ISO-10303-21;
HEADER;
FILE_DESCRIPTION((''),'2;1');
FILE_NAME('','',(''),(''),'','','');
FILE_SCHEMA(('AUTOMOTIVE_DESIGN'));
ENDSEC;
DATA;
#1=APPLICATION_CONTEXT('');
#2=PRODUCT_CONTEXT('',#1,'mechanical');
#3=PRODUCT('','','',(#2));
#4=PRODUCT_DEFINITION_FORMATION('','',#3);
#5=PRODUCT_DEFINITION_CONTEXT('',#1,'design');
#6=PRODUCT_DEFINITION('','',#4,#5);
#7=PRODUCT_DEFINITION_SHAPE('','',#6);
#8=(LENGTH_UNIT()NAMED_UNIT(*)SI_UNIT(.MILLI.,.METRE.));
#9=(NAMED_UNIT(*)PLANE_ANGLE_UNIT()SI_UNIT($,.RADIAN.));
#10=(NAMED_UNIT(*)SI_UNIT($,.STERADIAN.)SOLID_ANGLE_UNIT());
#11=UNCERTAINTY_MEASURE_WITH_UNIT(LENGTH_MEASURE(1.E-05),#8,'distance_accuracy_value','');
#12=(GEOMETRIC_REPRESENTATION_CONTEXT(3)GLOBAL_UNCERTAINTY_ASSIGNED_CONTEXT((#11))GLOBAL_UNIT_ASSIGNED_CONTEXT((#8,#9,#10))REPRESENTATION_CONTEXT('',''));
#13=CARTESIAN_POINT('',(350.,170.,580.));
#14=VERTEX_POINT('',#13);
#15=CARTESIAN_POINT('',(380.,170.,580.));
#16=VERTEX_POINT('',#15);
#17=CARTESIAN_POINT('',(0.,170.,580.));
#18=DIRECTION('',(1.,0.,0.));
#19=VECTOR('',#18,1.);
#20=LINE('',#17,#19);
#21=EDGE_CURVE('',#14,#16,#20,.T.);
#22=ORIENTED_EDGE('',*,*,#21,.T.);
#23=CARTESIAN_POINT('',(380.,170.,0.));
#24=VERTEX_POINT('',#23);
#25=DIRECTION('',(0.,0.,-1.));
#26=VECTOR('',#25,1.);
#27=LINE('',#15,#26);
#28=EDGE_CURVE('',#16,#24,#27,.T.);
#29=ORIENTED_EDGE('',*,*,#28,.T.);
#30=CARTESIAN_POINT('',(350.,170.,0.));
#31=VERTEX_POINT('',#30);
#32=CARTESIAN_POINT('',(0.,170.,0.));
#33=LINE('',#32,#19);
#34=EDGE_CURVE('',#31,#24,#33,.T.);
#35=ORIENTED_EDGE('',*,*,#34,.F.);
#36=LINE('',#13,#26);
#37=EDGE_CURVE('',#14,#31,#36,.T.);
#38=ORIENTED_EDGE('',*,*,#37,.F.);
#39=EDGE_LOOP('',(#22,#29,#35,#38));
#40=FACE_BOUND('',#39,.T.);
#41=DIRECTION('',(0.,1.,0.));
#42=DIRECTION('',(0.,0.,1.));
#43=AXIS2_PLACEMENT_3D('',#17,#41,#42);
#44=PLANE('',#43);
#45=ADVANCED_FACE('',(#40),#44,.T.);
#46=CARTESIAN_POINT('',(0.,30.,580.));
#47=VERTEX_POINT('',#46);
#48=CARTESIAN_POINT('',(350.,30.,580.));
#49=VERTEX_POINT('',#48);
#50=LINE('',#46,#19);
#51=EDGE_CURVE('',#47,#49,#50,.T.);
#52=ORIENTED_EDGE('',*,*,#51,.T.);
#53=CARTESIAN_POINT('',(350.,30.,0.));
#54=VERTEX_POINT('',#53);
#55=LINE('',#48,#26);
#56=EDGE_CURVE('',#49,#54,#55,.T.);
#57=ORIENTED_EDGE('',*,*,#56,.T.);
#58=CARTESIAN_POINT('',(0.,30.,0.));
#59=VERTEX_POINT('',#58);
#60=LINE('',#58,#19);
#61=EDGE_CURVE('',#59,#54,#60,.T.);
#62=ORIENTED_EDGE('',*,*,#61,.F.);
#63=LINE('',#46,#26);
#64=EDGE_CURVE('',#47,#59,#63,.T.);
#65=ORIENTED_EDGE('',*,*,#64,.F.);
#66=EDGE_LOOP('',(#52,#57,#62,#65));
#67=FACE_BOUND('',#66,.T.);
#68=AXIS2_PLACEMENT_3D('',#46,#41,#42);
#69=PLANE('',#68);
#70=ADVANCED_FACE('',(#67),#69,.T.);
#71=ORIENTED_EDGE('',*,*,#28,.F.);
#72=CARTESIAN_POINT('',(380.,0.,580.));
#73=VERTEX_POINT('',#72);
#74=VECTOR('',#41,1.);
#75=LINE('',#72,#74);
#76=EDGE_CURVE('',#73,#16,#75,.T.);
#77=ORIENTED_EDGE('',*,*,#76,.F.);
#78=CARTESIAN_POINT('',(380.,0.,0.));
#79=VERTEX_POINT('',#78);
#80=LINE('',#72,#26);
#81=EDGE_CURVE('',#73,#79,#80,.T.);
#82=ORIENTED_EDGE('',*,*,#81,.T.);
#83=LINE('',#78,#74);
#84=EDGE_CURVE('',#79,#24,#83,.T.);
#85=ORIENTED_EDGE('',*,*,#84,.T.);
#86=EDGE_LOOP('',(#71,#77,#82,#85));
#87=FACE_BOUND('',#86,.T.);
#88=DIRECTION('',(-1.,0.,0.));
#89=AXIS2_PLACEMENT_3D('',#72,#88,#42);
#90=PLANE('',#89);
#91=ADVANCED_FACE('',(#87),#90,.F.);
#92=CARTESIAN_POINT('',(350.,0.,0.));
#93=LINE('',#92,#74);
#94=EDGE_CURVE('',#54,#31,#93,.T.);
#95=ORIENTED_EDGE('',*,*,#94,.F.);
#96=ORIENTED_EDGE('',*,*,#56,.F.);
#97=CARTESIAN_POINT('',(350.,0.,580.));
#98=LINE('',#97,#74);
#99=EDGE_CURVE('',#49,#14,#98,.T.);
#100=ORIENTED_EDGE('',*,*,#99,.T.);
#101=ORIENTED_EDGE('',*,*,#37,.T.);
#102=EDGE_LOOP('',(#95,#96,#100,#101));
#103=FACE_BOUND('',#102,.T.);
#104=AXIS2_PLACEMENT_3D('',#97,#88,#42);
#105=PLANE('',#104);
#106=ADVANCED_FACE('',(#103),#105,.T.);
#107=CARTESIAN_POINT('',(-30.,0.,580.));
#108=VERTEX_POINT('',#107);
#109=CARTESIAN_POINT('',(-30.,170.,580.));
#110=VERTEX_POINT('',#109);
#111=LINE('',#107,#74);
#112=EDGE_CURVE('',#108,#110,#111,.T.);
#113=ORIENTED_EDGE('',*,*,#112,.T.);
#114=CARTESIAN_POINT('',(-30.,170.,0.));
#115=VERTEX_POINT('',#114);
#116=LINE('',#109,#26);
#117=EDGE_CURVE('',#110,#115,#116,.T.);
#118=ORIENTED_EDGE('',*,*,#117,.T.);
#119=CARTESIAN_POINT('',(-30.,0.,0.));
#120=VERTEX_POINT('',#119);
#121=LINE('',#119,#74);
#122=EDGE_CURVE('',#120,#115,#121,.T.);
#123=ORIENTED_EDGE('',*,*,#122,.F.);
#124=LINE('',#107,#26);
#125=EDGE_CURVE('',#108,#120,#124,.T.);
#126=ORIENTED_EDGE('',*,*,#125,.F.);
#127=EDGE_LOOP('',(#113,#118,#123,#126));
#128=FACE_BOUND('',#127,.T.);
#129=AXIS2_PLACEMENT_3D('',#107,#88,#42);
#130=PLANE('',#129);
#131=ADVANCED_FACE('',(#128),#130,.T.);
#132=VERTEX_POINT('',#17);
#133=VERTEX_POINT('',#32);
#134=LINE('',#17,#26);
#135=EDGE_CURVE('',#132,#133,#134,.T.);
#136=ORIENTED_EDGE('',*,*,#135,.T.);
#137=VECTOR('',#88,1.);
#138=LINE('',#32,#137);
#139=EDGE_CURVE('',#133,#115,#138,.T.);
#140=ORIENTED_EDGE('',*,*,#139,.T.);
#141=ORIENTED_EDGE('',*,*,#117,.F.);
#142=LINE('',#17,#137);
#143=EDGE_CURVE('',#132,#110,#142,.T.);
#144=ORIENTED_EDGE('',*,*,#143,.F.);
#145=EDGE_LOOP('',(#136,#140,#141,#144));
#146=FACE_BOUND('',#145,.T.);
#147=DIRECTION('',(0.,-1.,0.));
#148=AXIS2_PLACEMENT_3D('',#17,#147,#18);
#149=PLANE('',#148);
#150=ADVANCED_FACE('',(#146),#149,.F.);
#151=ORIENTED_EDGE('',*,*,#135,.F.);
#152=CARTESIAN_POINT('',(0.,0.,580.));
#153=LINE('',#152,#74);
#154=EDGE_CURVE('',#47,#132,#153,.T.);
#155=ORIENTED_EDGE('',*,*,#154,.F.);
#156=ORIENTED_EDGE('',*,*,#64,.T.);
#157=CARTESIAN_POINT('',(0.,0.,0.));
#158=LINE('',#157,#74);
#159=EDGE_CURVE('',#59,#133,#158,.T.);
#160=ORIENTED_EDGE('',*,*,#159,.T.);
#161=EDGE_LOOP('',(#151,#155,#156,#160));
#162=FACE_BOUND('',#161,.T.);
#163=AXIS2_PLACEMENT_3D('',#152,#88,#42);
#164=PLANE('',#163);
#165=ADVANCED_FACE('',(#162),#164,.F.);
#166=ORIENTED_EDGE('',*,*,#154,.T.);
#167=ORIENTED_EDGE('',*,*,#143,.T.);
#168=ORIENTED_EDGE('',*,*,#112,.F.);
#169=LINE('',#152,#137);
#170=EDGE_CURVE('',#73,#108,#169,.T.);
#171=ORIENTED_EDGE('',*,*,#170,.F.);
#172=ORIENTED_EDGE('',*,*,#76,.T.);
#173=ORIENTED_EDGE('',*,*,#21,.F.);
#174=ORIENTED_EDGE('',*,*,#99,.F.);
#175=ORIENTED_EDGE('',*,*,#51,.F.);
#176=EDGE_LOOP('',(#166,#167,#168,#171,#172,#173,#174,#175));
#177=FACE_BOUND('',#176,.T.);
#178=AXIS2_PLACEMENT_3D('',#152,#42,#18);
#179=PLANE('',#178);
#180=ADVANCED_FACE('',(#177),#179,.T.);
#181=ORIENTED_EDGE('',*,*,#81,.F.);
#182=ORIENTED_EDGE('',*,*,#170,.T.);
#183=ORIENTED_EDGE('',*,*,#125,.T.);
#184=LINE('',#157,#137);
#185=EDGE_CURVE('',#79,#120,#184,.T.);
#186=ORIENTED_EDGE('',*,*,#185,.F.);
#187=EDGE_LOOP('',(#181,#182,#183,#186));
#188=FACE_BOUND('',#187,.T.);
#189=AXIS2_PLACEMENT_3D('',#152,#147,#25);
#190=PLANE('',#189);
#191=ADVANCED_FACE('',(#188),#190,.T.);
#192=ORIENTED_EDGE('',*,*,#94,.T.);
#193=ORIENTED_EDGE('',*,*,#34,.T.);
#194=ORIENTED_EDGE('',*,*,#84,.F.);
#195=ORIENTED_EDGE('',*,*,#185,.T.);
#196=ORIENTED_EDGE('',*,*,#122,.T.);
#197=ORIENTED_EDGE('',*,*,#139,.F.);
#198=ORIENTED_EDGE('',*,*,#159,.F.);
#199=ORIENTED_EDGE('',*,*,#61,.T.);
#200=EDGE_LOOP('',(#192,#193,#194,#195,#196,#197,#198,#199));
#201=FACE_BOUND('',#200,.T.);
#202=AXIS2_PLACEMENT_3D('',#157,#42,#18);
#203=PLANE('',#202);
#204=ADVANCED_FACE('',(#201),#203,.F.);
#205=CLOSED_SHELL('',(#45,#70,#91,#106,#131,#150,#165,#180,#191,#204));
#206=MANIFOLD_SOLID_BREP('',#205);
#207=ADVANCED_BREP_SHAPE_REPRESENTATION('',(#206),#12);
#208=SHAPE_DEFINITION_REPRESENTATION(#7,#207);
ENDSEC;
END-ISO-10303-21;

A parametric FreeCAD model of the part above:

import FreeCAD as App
import Part
import Sketcher
from FreeCAD import Vector


def add_polygon(sketch, points):
    """Adds a closed chain of lines whose ends are joined by coincident constraints."""
    first, n = sketch.GeometryCount, len(points)
    for a, b in zip(points, points[1:] + points[:1]):
        sketch.addGeometry(Part.LineSegment(App.Vector(*a, 0), App.Vector(*b, 0)), False)
    for i in range(n):
        sketch.addConstraint(Sketcher.Constraint("Coincident", first + i, 2, first + (i + 1) % n, 1))

doc = App.newDocument("Part")
params = doc.addObject("Spreadsheet::Sheet", "Params")
for row, (alias, value) in enumerate([
    ("sketch1_width", "350 mm"),
    ("sketch1_width2", "30 mm"),
    ("sketch1_height", "140 mm"),
    ("sketch1_height2", "170 mm"),
    ("pad1_length", "580 mm"),
], start=1):
    params.set(f"A{row}", alias)
    params.set(f"B{row}", "=" + value)
    params.setAlias(f"B{row}", alias)

body = doc.addObject("PartDesign::Body", "Body")

# Sketch on XY plane
sketch1 = body.newObject("Sketcher::SketchObject", "Sketch")
sketch1.AttachmentSupport = (doc.getObject("XY_Plane"), [""])
sketch1.MapMode = "FlatFace"
add_polygon(sketch1, [(350, 170), (350, 30), (0, 30), (0, 170), (-30, 170), (-30, 0), (380, 0), (380, 170)])  # lines 0-7
sketch1.addConstraint([
    Sketcher.Constraint("Vertical", 0),
    Sketcher.Constraint("Horizontal", 1),
    Sketcher.Constraint("Vertical", 2),
    Sketcher.Constraint("Horizontal", 3),
    Sketcher.Constraint("Vertical", 4),
    Sketcher.Constraint("Horizontal", 5),
    Sketcher.Constraint("Vertical", 6),
    Sketcher.Constraint("Horizontal", 7),
    Sketcher.Constraint("PointOnObject", 1, 2, -2),
    Sketcher.Constraint("PointOnObject", 4, 2, -1),
    Sketcher.Constraint("Horizontal", 3, 2, 6, 2),
    Sketcher.Constraint("Equal", 3, 7),
    Sketcher.Constraint("DistanceX", 1, 2, 1, 1, 350.0),
    Sketcher.Constraint("DistanceX", 3, 2, 3, 1, 30.0),
    Sketcher.Constraint("DistanceY", 0, 2, 0, 1, 140.0),
    Sketcher.Constraint("DistanceY", 4, 2, 4, 1, 170.0),
])
sketch1.setExpression("Constraints[20]", "Params.sketch1_width")
sketch1.setExpression("Constraints[21]", "Params.sketch1_width2")
sketch1.setExpression("Constraints[22]", "Params.sketch1_height")
sketch1.setExpression("Constraints[23]", "Params.sketch1_height2")
pad1 = body.newObject("PartDesign::Pad", "Pad")
pad1.Profile = sketch1
pad1.setExpression("Length", "Params.pad1_length")

doc.recompute()
